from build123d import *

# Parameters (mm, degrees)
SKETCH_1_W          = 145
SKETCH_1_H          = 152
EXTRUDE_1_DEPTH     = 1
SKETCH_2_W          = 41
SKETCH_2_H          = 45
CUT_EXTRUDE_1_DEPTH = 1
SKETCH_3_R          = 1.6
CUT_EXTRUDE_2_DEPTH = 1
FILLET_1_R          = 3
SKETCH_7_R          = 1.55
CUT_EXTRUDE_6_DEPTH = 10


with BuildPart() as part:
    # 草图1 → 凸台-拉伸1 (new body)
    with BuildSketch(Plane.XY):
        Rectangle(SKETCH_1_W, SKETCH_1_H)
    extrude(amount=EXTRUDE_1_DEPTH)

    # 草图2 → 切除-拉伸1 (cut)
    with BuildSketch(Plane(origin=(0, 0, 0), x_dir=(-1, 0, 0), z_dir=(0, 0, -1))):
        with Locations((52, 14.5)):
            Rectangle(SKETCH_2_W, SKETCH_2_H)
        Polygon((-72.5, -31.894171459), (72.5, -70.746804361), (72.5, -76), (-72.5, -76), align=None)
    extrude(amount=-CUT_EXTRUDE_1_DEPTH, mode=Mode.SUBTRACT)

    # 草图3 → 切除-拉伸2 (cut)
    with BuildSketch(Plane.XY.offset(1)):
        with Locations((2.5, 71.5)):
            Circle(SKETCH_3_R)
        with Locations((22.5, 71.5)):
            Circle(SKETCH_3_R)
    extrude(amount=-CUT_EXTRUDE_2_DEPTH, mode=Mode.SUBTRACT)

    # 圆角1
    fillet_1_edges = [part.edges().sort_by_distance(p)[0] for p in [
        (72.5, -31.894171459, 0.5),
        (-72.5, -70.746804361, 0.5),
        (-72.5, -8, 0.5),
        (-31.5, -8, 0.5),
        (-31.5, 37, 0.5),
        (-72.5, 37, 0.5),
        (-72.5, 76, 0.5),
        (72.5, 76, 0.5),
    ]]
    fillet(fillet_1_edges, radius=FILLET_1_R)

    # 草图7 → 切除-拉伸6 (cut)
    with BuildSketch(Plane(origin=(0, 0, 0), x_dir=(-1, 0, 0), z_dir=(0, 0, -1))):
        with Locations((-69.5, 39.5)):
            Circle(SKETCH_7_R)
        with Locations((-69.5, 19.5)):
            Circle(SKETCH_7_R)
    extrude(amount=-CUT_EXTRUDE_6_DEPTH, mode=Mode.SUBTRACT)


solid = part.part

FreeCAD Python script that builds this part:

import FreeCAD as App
import Part
import Sketcher
from FreeCAD import Vector
Q = App.Units.Quantity


def edges_at(feature, points):
    """Names of the edges that pass closest to the given points."""
    edges = feature.Shape.Edges
    near = lambda p: min(range(len(edges)), key=lambda i: edges[i].distToShape(Part.Vertex(*p))[0])
    return sorted({f"Edge{near(p) + 1}" for p in points})

doc = App.newDocument("Part")
body = doc.addObject("PartDesign::Body", "Body")

sketch1 = body.newObject("Sketcher::SketchObject", "Sketch")
sketch1.AttachmentSupport = (doc.getObject("XY_Plane"), [""])
sketch1.MapMode = "FlatFace"
sketch1.addGeometry([
    Part.LineSegment(Vector(-72, 76, 0), Vector(-72, -76, 0)),
    Part.LineSegment(Vector(-72, -76, 0), Vector(72, -76, 0)),
    Part.LineSegment(Vector(72, -76, 0), Vector(72, 76, 0)),
    Part.LineSegment(Vector(72, 76, 0), Vector(-72, 76, 0)),
], False)
sketch1.addConstraint([
    Sketcher.Constraint("Coincident", 0, 2, 1, 1),
    Sketcher.Constraint("Coincident", 1, 2, 2, 1),
    Sketcher.Constraint("Coincident", 2, 2, 3, 1),
    Sketcher.Constraint("Coincident", 3, 2, 0, 1),
    Sketcher.Constraint("Vertical", 0),
    Sketcher.Constraint("Horizontal", 1),
    Sketcher.Constraint("Vertical", 2),
    Sketcher.Constraint("Horizontal", 3),
    Sketcher.Constraint("Symmetric", 0, 2, 2, 2, -1, 1),
    Sketcher.Constraint("DistanceX", 1, 1, 1, 2, Q("145 mm")),
    Sketcher.Constraint("DistanceY", 0, 2, 0, 1, Q("152 mm")),
])
pad1 = body.newObject("PartDesign::Pad", "Pad")
pad1.Profile = sketch1
pad1.Length = 1

sketch2 = body.newObject("Sketcher::SketchObject", "Sketch001")
sketch2.AttachmentSupport = (doc.getObject("XY_Plane"), [""])
sketch2.MapMode = "FlatFace"
sketch2.addGeometry([
    Part.LineSegment(Vector(-32, 37, 0), Vector(-32, -8, 0)),
    Part.LineSegment(Vector(-32, -8, 0), Vector(-72, -8, 0)),
    Part.LineSegment(Vector(-72, -8, 0), Vector(-72, 37, 0)),
    Part.LineSegment(Vector(-72, 37, 0), Vector(-32, 37, 0)),
    Part.LineSegment(Vector(-72, -71, 0), Vector(72, -32, 0)),
    Part.LineSegment(Vector(72, -32, 0), Vector(72, -76, 0)),
    Part.LineSegment(Vector(72, -76, 0), Vector(-72, -76, 0)),
    Part.LineSegment(Vector(-72, -76, 0), Vector(-72, -71, 0)),
], False)
sketch2.addConstraint([
    Sketcher.Constraint("Coincident", 0, 2, 1, 1),
    Sketcher.Constraint("Coincident", 1, 2, 2, 1),
    Sketcher.Constraint("Coincident", 2, 2, 3, 1),
    Sketcher.Constraint("Coincident", 3, 2, 0, 1),
    Sketcher.Constraint("Coincident", 4, 2, 5, 1),
    Sketcher.Constraint("Coincident", 5, 2, 6, 1),
    Sketcher.Constraint("Coincident", 6, 2, 7, 1),
    Sketcher.Constraint("Coincident", 7, 2, 4, 1),
    Sketcher.Constraint("Vertical", 0),
    Sketcher.Constraint("Horizontal", 1),
    Sketcher.Constraint("Vertical", 2),
    Sketcher.Constraint("Horizontal", 3),
    Sketcher.Constraint("Vertical", 5),
    Sketcher.Constraint("Horizontal", 6),
    Sketcher.Constraint("Vertical", 7),
    Sketcher.Constraint("Vertical", 2, 2, 6, 2),
    Sketcher.Constraint("DistanceX", 1, 2, 1, 1, Q("41 mm")),
    Sketcher.Constraint("DistanceX", 6, 2, 6, 1, Q("145 mm")),
    Sketcher.Constraint("DistanceY", 0, 2, 0, 1, Q("45 mm")),
    Sketcher.Constraint("Angle", 4, Q("15 deg")),
    Sketcher.Constraint("DistanceY", 0, 2, -1, 1, Q("8 mm")),
    Sketcher.Constraint("DistanceY", 5, 2, -1, 1, Q("76 mm")),
    Sketcher.Constraint("DistanceX", 0, 2, -1, 1, Q("31.5 mm")),
    Sketcher.Constraint("DistanceY", 5, 2, 5, 1, Q("44.105829 mm")),
])
pocket1 = body.newObject("PartDesign::Pocket", "Pocket")
pocket1.Profile = sketch2
pocket1.Length = 1
pocket1.Reversed = True

sketch3 = body.newObject("Sketcher::SketchObject", "Sketch002")
sketch3.AttachmentSupport = (doc.getObject("XY_Plane"), [""])
sketch3.MapMode = "FlatFace"
sketch3.AttachmentOffset = App.Placement(Vector(0, 0, 1), App.Rotation())
sketch3.addGeometry([
    Part.Circle(Vector(2.5, 71.5, 0), Vector(0, 0, 1), 1.6),
    Part.Circle(Vector(22.5, 71.5, 0), Vector(0, 0, 1), 1.6),
], False)
sketch3.addConstraint([
    Sketcher.Constraint("Equal", 0, 1),
    Sketcher.Constraint("Horizontal", 0, 3, 1, 3),
    Sketcher.Constraint("Diameter", 0, Q("3.2 mm")),
    Sketcher.Constraint("DistanceX", 0, 3, 1, 3, Q("20 mm")),
    Sketcher.Constraint("DistanceX", -1, 1, 0, 3, Q("2.5 mm")),
    Sketcher.Constraint("DistanceY", -1, 1, 0, 3, Q("71.5 mm")),
])
pocket2 = body.newObject("PartDesign::Pocket", "Pocket001")
pocket2.Profile = sketch3
pocket2.Length = 1
doc.recompute()

fillet = body.newObject("PartDesign::Fillet", "Fillet")
fillet.Base = (pocket2, edges_at(pocket2, [
    (72.5, -31.894, 0.5),
    (-72.5, -70.747, 0.5),
    (-72.5, -8, 0.5),
    (-31.5, -8, 0.5),
    (-31.5, 37, 0.5),
    (-72.5, 37, 0.5),
    (-72.5, 76, 0.5),
    (72.5, 76, 0.5),
]))
fillet.Radius = 3

sketch4 = body.newObject("Sketcher::SketchObject", "Sketch003")
sketch4.AttachmentSupport = (doc.getObject("XY_Plane"), [""])
sketch4.MapMode = "FlatFace"
sketch4.addGeometry([
    Part.Circle(Vector(69.5, 39.5, 0), Vector(0, 0, 1), 1.6),
    Part.Circle(Vector(69.5, 19.5, 0), Vector(0, 0, 1), 1.6),
], False)
sketch4.addConstraint([
    Sketcher.Constraint("Equal", 0, 1),
    Sketcher.Constraint("Vertical", 0, 3, 1, 3),
    Sketcher.Constraint("Diameter", 0, Q("3.1 mm")),
    Sketcher.Constraint("DistanceY", 1, 3, 0, 3, Q("20 mm")),
    Sketcher.Constraint("DistanceX", -1, 1, 0, 3, Q("69.5 mm")),
    Sketcher.Constraint("DistanceY", -1, 1, 0, 3, Q("39.5 mm")),
])
pocket3 = body.newObject("PartDesign::Pocket", "Pocket002")
pocket3.Profile = sketch4
pocket3.Length = 10
pocket3.Reversed = True

doc.recompute()
